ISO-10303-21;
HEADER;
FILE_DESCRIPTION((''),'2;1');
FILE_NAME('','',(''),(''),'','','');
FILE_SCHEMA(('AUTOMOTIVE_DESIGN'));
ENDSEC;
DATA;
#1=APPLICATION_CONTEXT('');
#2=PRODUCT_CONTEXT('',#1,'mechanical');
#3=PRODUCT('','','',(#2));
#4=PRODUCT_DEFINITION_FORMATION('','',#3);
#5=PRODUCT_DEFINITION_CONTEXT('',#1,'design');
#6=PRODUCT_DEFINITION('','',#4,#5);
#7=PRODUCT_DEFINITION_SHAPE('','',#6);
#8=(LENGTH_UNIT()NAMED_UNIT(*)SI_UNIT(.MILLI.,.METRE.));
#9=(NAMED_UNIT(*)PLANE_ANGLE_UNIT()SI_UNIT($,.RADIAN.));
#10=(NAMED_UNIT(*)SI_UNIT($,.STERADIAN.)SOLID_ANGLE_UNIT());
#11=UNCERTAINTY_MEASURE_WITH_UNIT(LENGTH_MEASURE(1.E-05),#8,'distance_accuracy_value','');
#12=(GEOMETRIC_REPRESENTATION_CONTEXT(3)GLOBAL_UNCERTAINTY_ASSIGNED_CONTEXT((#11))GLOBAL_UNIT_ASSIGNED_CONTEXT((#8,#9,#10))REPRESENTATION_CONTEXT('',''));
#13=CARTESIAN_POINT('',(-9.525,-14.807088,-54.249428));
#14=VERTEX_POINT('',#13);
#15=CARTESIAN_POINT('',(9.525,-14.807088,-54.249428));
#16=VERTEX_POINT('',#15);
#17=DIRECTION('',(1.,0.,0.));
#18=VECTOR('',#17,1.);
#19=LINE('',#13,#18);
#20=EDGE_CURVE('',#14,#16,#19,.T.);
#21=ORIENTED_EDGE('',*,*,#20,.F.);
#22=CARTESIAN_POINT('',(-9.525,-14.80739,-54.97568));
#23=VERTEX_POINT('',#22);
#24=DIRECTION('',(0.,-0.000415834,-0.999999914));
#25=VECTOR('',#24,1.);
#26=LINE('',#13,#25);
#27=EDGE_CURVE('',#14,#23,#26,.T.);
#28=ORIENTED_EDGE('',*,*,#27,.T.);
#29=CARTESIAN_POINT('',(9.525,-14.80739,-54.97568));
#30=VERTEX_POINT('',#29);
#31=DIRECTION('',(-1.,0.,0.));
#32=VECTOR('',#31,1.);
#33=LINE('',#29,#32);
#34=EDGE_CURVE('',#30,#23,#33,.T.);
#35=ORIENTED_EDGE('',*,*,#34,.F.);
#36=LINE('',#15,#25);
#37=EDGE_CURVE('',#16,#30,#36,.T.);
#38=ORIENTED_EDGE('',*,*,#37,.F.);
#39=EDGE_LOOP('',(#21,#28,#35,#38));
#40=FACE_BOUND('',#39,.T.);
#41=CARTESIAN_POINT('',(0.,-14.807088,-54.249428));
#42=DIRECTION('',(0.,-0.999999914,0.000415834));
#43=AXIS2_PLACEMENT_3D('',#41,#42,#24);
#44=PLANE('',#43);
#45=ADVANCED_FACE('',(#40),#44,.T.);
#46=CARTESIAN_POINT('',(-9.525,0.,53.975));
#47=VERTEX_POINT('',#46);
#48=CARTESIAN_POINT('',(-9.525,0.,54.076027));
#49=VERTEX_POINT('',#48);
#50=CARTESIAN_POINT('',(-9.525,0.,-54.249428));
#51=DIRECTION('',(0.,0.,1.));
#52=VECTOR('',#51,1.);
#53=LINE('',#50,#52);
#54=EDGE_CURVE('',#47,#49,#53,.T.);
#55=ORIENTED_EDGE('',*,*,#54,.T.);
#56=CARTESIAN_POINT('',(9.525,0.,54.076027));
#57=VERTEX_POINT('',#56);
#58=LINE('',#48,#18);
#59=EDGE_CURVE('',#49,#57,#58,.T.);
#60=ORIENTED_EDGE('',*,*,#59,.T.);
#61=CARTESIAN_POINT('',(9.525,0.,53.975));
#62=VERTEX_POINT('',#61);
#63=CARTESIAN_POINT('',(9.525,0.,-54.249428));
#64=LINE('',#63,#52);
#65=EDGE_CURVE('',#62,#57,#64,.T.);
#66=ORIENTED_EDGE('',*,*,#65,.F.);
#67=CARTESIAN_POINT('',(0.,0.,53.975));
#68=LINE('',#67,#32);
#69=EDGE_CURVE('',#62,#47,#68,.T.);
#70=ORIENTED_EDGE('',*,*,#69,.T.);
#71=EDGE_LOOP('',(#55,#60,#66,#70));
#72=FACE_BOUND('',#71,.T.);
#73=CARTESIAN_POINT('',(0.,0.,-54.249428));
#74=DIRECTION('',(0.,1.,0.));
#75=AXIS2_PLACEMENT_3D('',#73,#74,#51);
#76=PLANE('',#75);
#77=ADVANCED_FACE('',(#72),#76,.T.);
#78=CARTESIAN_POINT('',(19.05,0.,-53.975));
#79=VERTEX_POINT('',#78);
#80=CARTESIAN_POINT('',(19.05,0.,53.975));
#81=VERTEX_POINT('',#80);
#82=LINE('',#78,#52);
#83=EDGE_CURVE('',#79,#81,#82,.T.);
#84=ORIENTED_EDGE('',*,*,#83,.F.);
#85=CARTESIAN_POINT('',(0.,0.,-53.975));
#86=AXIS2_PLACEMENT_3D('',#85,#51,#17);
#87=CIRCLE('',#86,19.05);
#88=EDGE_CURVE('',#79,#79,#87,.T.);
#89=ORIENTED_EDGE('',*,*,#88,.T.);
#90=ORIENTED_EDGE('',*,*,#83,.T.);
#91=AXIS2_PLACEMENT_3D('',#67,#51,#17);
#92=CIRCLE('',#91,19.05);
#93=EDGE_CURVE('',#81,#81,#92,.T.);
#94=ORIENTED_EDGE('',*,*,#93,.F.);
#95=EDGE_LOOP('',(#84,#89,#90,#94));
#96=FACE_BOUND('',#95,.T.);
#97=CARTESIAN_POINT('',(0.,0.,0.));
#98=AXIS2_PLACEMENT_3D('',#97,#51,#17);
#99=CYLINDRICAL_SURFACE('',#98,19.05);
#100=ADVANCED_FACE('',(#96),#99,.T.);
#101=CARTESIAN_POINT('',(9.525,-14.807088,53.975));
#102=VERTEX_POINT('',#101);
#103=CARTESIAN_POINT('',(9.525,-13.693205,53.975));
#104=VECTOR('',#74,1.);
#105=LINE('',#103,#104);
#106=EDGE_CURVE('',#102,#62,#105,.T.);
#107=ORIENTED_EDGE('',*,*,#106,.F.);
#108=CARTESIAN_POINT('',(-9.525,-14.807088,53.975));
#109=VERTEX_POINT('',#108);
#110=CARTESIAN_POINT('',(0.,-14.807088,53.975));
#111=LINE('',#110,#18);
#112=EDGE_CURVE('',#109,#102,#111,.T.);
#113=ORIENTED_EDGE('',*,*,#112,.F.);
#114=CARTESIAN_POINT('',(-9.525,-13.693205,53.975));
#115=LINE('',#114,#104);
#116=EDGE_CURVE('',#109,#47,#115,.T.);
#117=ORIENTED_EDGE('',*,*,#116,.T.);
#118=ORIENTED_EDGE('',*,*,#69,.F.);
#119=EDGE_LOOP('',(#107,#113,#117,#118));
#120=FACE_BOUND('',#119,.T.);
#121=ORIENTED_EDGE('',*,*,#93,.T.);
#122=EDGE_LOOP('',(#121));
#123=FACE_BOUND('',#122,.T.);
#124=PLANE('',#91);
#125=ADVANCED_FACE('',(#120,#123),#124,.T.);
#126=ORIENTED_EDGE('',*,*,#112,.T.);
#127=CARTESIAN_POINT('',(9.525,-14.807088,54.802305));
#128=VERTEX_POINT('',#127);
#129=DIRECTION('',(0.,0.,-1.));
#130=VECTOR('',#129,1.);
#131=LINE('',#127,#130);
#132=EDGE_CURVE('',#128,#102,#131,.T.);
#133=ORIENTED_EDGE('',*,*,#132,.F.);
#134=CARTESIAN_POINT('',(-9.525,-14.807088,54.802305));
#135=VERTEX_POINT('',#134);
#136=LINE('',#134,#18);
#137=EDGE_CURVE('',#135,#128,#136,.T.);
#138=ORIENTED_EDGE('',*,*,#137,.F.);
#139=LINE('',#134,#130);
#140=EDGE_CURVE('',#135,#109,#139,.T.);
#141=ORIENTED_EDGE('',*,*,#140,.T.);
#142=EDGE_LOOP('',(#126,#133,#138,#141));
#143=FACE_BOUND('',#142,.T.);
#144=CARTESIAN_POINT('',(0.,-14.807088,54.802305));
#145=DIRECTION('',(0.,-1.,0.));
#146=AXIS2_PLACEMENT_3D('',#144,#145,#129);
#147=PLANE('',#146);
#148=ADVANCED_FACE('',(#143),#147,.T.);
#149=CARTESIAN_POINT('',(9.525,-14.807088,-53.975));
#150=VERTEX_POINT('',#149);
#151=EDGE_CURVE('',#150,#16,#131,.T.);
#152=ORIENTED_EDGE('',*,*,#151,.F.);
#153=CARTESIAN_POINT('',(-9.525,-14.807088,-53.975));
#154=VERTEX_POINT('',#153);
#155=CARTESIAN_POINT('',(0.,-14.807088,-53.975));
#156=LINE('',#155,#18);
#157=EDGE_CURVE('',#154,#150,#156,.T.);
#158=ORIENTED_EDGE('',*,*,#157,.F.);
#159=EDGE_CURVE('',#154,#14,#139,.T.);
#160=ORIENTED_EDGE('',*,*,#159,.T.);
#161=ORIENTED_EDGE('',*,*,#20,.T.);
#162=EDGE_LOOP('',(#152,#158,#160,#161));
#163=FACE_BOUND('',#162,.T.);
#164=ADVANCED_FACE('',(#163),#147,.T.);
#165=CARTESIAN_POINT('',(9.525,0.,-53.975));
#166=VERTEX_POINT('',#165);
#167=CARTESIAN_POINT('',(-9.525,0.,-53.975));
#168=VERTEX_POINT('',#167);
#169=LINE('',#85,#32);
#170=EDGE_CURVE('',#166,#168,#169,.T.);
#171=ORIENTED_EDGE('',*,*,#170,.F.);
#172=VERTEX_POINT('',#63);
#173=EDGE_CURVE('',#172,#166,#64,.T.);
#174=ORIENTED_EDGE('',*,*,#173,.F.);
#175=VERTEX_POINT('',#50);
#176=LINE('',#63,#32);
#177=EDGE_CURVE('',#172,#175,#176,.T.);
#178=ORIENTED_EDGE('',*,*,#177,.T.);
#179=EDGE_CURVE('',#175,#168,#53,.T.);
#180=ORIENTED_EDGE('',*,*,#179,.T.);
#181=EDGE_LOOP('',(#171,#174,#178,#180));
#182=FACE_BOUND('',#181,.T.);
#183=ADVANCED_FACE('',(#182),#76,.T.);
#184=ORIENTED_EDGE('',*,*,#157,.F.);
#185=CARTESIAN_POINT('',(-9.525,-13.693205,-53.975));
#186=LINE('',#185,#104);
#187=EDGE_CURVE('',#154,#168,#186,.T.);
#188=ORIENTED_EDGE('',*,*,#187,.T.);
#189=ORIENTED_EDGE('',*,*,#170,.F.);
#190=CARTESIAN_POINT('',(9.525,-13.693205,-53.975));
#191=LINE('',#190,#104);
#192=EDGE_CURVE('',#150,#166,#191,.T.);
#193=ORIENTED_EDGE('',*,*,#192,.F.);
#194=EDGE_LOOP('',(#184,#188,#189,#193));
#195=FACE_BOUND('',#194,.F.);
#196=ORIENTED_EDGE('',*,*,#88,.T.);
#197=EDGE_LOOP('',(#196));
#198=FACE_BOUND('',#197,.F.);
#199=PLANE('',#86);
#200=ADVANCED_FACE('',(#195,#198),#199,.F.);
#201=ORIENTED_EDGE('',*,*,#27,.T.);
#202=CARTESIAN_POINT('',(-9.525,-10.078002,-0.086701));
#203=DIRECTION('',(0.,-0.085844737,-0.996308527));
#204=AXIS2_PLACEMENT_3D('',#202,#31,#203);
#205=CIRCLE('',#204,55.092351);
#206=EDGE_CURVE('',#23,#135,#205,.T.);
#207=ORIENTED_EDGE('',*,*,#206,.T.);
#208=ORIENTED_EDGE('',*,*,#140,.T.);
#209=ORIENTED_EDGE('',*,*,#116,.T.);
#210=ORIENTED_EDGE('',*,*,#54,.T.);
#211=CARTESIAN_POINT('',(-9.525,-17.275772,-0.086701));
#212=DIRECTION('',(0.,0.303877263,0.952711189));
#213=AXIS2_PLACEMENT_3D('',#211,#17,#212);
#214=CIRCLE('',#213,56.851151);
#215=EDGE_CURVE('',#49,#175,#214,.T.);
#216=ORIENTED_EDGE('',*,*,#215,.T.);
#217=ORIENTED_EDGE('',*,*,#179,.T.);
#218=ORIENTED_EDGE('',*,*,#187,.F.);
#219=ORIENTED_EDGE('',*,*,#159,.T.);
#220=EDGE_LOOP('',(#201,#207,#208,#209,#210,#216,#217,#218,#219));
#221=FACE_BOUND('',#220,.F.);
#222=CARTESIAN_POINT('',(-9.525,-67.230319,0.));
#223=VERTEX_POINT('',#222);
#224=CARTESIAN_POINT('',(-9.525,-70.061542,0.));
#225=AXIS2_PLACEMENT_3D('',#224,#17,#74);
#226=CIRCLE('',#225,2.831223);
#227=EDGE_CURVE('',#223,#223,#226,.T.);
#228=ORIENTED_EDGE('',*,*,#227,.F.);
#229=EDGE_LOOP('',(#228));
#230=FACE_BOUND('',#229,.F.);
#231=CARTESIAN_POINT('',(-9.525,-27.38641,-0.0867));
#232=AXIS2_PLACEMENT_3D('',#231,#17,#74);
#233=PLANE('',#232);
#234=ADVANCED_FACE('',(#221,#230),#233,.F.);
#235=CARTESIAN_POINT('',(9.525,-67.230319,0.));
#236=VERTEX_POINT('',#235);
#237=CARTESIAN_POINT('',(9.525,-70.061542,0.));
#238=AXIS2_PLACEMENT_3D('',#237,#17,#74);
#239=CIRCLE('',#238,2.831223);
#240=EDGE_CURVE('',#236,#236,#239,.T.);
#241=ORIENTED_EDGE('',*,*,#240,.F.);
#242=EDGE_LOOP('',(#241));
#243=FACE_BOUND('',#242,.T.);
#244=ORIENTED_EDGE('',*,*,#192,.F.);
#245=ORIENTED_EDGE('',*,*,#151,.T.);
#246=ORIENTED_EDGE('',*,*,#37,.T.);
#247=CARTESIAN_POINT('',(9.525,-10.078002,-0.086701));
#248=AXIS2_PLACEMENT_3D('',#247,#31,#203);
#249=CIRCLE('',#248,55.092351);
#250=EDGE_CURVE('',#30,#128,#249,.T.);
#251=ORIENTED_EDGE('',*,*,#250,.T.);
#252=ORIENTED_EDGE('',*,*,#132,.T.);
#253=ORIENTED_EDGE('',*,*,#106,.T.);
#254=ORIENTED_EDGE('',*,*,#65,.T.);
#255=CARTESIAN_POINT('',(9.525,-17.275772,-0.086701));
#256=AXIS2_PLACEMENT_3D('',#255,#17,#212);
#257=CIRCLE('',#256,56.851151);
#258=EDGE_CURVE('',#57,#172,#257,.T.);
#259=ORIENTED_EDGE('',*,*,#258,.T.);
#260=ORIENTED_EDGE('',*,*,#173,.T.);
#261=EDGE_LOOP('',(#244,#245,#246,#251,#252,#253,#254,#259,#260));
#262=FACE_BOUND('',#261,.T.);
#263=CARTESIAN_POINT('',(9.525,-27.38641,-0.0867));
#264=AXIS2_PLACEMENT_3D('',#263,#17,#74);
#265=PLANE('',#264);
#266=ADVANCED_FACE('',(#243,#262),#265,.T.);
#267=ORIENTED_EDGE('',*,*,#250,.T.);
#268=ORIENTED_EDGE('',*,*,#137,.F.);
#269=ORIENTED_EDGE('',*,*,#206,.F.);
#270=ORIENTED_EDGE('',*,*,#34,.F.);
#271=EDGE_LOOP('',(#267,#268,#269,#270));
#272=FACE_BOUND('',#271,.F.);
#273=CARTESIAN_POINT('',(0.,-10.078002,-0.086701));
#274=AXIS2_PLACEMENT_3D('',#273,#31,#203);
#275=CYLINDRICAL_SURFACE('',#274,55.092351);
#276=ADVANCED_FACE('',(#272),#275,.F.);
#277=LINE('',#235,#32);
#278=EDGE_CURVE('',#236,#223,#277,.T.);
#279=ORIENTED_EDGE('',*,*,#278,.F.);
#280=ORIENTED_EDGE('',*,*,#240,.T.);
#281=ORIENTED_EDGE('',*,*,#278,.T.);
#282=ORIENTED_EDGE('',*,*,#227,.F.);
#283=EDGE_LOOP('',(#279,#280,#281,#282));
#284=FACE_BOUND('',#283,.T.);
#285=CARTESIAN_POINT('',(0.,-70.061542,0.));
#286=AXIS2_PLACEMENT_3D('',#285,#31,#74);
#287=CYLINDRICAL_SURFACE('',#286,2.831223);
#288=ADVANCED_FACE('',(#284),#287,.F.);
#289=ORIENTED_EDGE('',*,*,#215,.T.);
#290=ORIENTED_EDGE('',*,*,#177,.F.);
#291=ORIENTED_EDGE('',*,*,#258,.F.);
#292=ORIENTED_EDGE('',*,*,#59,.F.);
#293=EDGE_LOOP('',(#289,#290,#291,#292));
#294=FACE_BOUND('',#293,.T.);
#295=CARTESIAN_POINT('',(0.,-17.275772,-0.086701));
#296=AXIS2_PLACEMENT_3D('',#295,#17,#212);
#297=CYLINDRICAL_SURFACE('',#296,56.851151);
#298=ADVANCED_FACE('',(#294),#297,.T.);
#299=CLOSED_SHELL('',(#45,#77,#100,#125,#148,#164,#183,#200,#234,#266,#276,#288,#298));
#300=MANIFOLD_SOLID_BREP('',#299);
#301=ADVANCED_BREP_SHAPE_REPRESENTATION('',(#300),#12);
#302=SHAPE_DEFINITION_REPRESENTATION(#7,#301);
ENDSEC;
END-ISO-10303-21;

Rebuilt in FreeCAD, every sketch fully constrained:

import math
import FreeCAD as App
import Part
import Sketcher
Q = App.Units.Quantity

doc = App.newDocument("Part")
body = doc.addObject("PartDesign::Body", "Body")

sketch1 = doc.addObject("Sketcher::SketchObject", "Sketch")
body.addObject(sketch1)
sketch1.AttachmentSupport = (doc.XY_Plane, [""])
sketch1.MapMode = "FlatFace"
sketch1.addGeometry(Part.Circle(App.Vector(0, 0, 0), App.Vector(0, 0, 1), 19), False)
sketch1.addConstraint(Sketcher.Constraint("Coincident", 0, 3, -1, 1))
sketch1.addConstraint(Sketcher.Constraint("Diameter", 0, Q("1.5 in")))
pad1 = doc.addObject("PartDesign::Pad", "Pad")
body.addObject(pad1)
pad1.Profile = sketch1
pad1.Length = Q("4.25 in")
pad1.Midplane = True

sketch2 = doc.addObject("Sketcher::SketchObject", "Sketch001")
body.addObject(sketch2)
sketch2.AttachmentSupport = (doc.YZ_Plane, [""])
sketch2.MapMode = "FlatFace"
sketch2.addGeometry(Part.LineSegment(App.Vector(0, -54.2, 0), App.Vector(0, 54.1, 0)), False)
sketch2.addGeometry(Part.ArcOfCircle(Part.Circle(App.Vector(-17.3, -0.1, 0), App.Vector(0, 0, 1), 56.9), math.radians(72), math.radians(288)), False)
sketch2.addGeometry(Part.Circle(App.Vector(-70.1, 0, 0), App.Vector(0, 0, 1), 2.8), False)
sketch2.addGeometry(Part.LineSegment(App.Vector(-14.8, -54.2, 0), App.Vector(-14.8, -55, 0)), False)
sketch2.addGeometry(Part.ArcOfCircle(Part.Circle(App.Vector(-10.1, -0.1, 0), App.Vector(0, 0, 1), 55.1), math.radians(95), math.radians(265)), False)
sketch2.addGeometry(Part.LineSegment(App.Vector(-14.8, 54.8, 0), App.Vector(-14.8, -54.2, 0)), False)
sketch2.addConstraint(Sketcher.Constraint("Coincident", 0, 1, 1, 2))
sketch2.addConstraint(Sketcher.Constraint("Coincident", 1, 1, 0, 2))
sketch2.addConstraint(Sketcher.Constraint("Coincident", 3, 2, 4, 2))
sketch2.addConstraint(Sketcher.Constraint("Coincident", 4, 1, 5, 1))
sketch2.addConstraint(Sketcher.Constraint("Coincident", 5, 2, 3, 1))
sketch2.addConstraint(Sketcher.Constraint("Vertical", 0))
sketch2.addConstraint(Sketcher.Constraint("Vertical", 5))
sketch2.addConstraint(Sketcher.Constraint("PointOnObject", 2, 3, -1))
sketch2.addConstraint(Sketcher.Constraint("PointOnObject", 0, 1, -2))
sketch2.addConstraint(Sketcher.Constraint("Horizontal", 1, 3, 4, 3))
sketch2.addConstraint(Sketcher.Constraint("Horizontal", 0, 1, 5, 2))
sketch2.addConstraint(Sketcher.Constraint("Radius", 1, 56.851151))
sketch2.addConstraint(Sketcher.Constraint("Radius", 4, 55.092351))
sketch2.addConstraint(Sketcher.Constraint("Diameter", 2, 5.662446))
sketch2.addConstraint(Sketcher.Constraint("DistanceY", 1, 3, -1, 1, 0.0867))
sketch2.addConstraint(Sketcher.Constraint("DistanceX", 4, 3, -1, 1, 10.078002))
sketch2.addConstraint(Sketcher.Constraint("DistanceX", 3, 2, 4, 1, 0.000302))
sketch2.addConstraint(Sketcher.Constraint("DistanceY", 0, 1, 0, 2, 108.325455))
sketch2.addConstraint(Sketcher.Constraint("DistanceY", 5, 2, 5, 1, 109.051733))
sketch2.addConstraint(Sketcher.Constraint("DistanceX", 2, 3, 1, 3, 52.78577))
pad2 = doc.addObject("PartDesign::Pad", "Pad001")
body.addObject(pad2)
pad2.Profile = sketch2
pad2.Length = Q("0.75 in")
pad2.Midplane = True

doc.recompute()
